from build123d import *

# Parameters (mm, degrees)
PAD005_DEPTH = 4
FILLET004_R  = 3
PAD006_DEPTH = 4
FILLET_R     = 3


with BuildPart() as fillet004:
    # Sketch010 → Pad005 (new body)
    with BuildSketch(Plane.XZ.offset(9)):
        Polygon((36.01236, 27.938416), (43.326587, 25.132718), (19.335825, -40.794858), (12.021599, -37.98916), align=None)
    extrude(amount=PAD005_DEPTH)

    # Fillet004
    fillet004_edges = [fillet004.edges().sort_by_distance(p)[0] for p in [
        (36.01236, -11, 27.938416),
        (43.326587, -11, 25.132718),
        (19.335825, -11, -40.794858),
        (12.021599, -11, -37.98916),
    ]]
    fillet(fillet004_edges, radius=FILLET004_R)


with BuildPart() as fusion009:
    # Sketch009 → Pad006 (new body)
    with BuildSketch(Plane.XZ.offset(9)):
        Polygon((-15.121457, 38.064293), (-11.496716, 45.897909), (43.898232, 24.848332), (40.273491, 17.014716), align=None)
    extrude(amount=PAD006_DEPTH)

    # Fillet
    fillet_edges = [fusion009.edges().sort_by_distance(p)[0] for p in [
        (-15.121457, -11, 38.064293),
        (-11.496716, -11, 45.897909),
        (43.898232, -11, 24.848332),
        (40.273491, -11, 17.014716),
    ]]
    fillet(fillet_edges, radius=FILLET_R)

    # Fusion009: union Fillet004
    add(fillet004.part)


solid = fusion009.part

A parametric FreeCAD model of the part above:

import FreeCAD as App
import Part
import Sketcher
from FreeCAD import Vector


def edges_at(feature, points):
    """Names of the edges that pass closest to the given points."""
    edges = feature.Shape.Edges
    near = lambda p: min(range(len(edges)), key=lambda i: edges[i].distToShape(Part.Vertex(*p))[0])
    return sorted({f"Edge{near(p) + 1}" for p in points})

doc = App.newDocument("Part")
body = doc.addObject("PartDesign::Body", "Body")

# Sketch on XZ plane
sketch1 = doc.addObject("Sketcher::SketchObject", "Sketch")
body.addObject(sketch1)
sketch1.AttachmentSupport = (doc.XZ_Plane, [""])
sketch1.MapMode = "FlatFace"
sketch1.AttachmentOffset = App.Placement(Vector(0, 0, 9), App.Rotation())
sketch1.addGeometry(Part.LineSegment(Vector(43, 25, 0), Vector(36, 28, 0)), False)
sketch1.addGeometry(Part.LineSegment(Vector(36, 28, 0), Vector(12, -38, 0)), False)
sketch1.addGeometry(Part.LineSegment(Vector(12, -38, 0), Vector(19, -41, 0)), False)
sketch1.addGeometry(Part.LineSegment(Vector(19, -41, 0), Vector(43, 25, 0)), False)
sketch1.addConstraint(Sketcher.Constraint("Coincident", 0, 2, 1, 1))
sketch1.addConstraint(Sketcher.Constraint("Coincident", 1, 2, 2, 1))
sketch1.addConstraint(Sketcher.Constraint("Coincident", 2, 2, 3, 1))
sketch1.addConstraint(Sketcher.Constraint("Coincident", 3, 2, 0, 1))
sketch1.addConstraint(Sketcher.Constraint("Parallel", 0, 2))
sketch1.addConstraint(Sketcher.Constraint("Parallel", 1, 3))
sketch1.addConstraint(Sketcher.Constraint("DistanceX", -1, 1, 1, 2, 12.021599))
sketch1.addConstraint(Sketcher.Constraint("Distance", 0, 7.833892))
sketch1.addConstraint(Sketcher.Constraint("Distance", 1, 70.15698))
sketch1.addConstraint(Sketcher.Constraint("DistanceX", -1, 1, 0, 2, 36.01236))
sketch1.addConstraint(Sketcher.Constraint("DistanceY", 1, 2, -1, 1, 37.98916))
sketch1.addConstraint(Sketcher.Constraint("DistanceY", -1, 1, 3, 2, 25.132718))
pad1 = doc.addObject("PartDesign::Pad", "Pad")
body.addObject(pad1)
pad1.Profile = sketch1
pad1.Length = 4
doc.recompute()

fillet = doc.addObject("PartDesign::Fillet", "Fillet")
body.addObject(fillet)
fillet.Base = (pad1, edges_at(pad1, [
    (36.012, -11, 27.938),
    (43.327, -11, 25.133),
    (19.336, -11, -40.795),
    (12.022, -11, -37.989),
]))
fillet.Radius = 3
body2 = doc.addObject("PartDesign::Body", "Body001")

# Sketch on XZ plane
sketch2 = doc.addObject("Sketcher::SketchObject", "Sketch001")
body2.addObject(sketch2)
sketch2.AttachmentSupport = (doc.getObject("XZ_Plane001"), [""])
sketch2.MapMode = "FlatFace"
sketch2.AttachmentOffset = App.Placement(Vector(0, 0, 9), App.Rotation())
sketch2.addGeometry(Part.LineSegment(Vector(-11, 46, 0), Vector(-15, 38, 0)), False)
sketch2.addGeometry(Part.LineSegment(Vector(-15, 38, 0), Vector(40, 17, 0)), False)
sketch2.addGeometry(Part.LineSegment(Vector(40, 17, 0), Vector(44, 25, 0)), False)
sketch2.addGeometry(Part.LineSegment(Vector(44, 25, 0), Vector(-11, 46, 0)), False)
sketch2.addConstraint(Sketcher.Constraint("Coincident", 0, 2, 1, 1))
sketch2.addConstraint(Sketcher.Constraint("Coincident", 1, 2, 2, 1))
sketch2.addConstraint(Sketcher.Constraint("Coincident", 2, 2, 3, 1))
sketch2.addConstraint(Sketcher.Constraint("Coincident", 3, 2, 0, 1))
sketch2.addConstraint(Sketcher.Constraint("Parallel", 0, 2))
sketch2.addConstraint(Sketcher.Constraint("Parallel", 1, 3))
sketch2.addConstraint(Sketcher.Constraint("Distance", 1, 59.259471))
sketch2.addConstraint(Sketcher.Constraint("DistanceX", -1, 1, 1, 2, 40.273491))
sketch2.addConstraint(Sketcher.Constraint("DistanceY", -1, 1, 2, 2, 24.848332))
sketch2.addConstraint(Sketcher.Constraint("DistanceY", -1, 1, 3, 2, 45.897909))
sketch2.addConstraint(Sketcher.Constraint("DistanceX", 1, 2, 2, 2, 3.624741))
sketch2.addConstraint(Sketcher.Constraint("DistanceY", 2, 2, 0, 2, 13.215961))
pad2 = doc.addObject("PartDesign::Pad", "Pad001")
body2.addObject(pad2)
pad2.Profile = sketch2
pad2.Length = 4
doc.recompute()

fillet2 = doc.addObject("PartDesign::Fillet", "Fillet001")
body2.addObject(fillet2)
fillet2.Base = (pad2, edges_at(pad2, [
    (-15.121, -11, 38.064),
    (-11.497, -11, 45.898),
    (43.898, -11, 24.848),
    (40.273, -11, 17.015),
]))
fillet2.Radius = 3
doc.recompute()

boolean = doc.addObject("PartDesign::Boolean", "Boolean")
body2.addObject(boolean)
boolean.Type = "Fuse"
boolean.addObjects([body])

doc.recompute()
